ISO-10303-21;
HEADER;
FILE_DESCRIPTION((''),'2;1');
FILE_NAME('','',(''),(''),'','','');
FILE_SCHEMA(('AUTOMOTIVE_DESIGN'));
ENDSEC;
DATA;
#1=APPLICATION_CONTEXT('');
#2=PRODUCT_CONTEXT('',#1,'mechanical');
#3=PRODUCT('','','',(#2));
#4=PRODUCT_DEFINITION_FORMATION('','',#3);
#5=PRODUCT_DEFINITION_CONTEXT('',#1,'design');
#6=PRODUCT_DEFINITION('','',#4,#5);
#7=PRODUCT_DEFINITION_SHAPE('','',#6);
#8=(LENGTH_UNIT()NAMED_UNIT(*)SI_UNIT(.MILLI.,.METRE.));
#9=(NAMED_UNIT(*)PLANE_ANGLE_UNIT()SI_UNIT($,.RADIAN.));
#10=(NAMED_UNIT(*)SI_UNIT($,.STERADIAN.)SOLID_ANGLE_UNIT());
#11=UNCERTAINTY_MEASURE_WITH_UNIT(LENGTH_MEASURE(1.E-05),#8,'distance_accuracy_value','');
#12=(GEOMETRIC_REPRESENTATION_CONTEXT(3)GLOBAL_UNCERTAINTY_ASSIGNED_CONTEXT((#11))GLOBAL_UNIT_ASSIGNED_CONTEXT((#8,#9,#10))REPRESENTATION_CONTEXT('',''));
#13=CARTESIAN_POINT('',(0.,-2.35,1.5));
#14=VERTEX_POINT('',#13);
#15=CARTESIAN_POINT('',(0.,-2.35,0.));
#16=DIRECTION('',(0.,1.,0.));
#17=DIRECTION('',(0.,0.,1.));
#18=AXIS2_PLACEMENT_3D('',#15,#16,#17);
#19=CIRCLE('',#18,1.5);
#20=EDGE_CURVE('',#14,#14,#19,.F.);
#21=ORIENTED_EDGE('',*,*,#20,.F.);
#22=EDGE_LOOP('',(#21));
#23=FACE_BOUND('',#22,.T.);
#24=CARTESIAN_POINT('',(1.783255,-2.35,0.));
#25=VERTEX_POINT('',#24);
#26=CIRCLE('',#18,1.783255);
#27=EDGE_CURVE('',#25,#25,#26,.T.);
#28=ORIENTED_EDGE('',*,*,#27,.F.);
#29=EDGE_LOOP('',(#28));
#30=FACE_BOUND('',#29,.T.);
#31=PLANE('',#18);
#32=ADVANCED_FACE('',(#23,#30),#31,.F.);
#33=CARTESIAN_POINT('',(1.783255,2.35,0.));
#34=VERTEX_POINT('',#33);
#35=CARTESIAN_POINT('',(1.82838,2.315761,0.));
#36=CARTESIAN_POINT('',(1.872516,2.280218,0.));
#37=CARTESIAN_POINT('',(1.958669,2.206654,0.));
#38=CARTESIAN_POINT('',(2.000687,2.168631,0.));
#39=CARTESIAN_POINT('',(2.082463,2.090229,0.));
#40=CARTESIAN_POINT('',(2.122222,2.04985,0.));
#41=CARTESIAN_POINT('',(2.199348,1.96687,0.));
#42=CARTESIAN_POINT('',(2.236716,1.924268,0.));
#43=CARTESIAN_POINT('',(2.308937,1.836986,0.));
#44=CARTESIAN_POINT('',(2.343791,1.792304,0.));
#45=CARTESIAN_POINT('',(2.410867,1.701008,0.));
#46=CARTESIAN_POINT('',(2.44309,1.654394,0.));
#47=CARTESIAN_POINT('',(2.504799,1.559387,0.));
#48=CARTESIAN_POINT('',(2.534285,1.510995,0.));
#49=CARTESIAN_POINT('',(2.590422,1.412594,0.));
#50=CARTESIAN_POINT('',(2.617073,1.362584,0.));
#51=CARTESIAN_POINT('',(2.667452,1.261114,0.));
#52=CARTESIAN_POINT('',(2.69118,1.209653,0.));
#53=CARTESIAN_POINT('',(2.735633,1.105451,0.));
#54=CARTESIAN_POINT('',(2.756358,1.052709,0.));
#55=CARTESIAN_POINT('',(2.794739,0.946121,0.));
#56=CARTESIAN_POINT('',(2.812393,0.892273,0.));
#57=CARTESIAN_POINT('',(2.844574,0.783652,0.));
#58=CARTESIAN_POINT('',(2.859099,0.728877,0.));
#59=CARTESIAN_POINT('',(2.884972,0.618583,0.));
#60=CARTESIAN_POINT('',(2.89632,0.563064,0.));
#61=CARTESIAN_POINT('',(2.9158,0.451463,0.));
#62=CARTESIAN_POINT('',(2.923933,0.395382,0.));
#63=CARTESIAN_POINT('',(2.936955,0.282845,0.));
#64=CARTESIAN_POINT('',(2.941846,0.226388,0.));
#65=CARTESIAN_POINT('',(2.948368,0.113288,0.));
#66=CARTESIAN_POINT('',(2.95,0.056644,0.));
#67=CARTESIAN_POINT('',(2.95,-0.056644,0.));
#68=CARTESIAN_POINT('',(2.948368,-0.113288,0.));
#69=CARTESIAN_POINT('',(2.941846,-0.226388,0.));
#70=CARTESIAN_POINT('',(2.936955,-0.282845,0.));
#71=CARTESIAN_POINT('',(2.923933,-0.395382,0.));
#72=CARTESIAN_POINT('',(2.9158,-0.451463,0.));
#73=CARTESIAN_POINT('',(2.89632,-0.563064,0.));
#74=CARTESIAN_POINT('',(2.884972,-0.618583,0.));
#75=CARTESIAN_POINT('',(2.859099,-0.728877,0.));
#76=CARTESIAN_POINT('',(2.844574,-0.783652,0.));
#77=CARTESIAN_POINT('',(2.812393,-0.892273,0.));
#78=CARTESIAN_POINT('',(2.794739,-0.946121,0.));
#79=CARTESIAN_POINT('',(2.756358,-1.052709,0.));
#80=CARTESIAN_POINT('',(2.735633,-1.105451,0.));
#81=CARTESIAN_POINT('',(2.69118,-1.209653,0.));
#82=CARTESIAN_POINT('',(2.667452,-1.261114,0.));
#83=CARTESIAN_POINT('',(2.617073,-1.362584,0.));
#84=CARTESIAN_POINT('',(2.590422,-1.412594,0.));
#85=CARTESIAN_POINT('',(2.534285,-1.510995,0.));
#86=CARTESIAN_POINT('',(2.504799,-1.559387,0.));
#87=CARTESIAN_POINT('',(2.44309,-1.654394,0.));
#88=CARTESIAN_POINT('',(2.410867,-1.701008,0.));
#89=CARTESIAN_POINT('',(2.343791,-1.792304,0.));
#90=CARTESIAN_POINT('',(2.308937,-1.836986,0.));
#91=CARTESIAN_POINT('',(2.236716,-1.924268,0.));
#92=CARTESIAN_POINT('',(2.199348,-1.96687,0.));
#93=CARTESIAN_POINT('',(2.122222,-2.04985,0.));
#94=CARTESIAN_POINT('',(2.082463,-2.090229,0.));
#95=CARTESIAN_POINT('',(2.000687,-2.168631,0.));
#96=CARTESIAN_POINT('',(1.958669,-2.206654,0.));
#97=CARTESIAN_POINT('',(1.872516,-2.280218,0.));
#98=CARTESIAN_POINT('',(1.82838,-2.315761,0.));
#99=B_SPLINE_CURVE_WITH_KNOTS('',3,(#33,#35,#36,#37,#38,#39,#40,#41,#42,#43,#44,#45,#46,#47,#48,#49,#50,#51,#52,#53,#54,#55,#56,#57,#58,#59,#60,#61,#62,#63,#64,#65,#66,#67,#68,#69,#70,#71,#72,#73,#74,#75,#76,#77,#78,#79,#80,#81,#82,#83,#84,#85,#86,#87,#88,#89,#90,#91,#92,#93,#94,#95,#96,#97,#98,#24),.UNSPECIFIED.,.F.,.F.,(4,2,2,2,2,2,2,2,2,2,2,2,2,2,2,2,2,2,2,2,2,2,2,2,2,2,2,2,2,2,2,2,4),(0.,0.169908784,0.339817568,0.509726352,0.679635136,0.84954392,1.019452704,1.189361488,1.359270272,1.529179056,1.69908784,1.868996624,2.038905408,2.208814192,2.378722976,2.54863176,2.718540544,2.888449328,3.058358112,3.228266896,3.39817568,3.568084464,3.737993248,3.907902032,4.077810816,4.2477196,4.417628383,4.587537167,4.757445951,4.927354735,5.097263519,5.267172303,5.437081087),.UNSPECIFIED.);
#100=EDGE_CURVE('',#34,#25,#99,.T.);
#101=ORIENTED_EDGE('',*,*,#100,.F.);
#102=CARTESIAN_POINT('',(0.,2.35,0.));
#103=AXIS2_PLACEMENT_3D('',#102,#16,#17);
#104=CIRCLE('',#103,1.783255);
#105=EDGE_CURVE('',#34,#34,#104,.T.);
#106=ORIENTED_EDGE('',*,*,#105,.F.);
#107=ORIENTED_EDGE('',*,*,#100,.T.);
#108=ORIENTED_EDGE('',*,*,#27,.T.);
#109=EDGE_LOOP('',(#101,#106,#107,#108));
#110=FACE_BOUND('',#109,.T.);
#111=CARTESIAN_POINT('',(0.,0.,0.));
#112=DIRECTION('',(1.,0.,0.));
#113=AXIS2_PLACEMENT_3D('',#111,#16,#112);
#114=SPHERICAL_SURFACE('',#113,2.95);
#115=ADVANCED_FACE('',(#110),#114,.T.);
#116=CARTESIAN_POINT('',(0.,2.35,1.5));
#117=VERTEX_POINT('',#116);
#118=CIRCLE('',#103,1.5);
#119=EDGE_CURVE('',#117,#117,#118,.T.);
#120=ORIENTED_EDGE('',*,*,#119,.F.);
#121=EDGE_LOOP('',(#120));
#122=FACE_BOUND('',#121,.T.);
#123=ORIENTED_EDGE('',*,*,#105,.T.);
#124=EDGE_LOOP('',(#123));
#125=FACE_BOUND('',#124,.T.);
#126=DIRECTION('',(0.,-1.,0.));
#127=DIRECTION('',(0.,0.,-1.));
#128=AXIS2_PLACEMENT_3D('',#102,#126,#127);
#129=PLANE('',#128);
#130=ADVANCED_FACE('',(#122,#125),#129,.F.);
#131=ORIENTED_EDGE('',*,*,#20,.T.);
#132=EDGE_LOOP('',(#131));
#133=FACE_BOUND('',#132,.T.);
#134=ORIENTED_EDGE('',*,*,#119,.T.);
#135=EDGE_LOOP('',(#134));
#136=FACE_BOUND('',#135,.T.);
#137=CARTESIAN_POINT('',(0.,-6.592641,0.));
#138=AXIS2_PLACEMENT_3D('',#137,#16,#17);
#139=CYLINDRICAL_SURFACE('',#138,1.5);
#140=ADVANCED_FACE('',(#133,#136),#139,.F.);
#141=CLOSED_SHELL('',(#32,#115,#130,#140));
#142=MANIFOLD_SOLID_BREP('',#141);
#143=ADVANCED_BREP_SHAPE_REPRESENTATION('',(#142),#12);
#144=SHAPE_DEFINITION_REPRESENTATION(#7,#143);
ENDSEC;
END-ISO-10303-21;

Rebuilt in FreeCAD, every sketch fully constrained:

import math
import FreeCAD as App
import Part
import Sketcher

V = App.Vector

doc = App.newDocument("Part")
body = doc.addObject("PartDesign::Body", "Body")

sketch1 = body.newObject("Sketcher::SketchObject", "Sketch")
sketch1.AttachmentSupport = (doc.getObject("XY_Plane"), [""])
sketch1.MapMode = "FlatFace"
sketch1.addGeometry([
    Part.LineSegment(V(0, 2.35, 0), V(0, -2.35, 0)),
    Part.LineSegment(V(0, -2.35, 0), V(1.783255, -2.35, 0)),
    Part.ArcOfCircle(Part.Circle(V(0, 0, 0), V(0, 0, 1), 2.95), math.radians(-52.807606), math.radians(52.807606)),
    Part.LineSegment(V(1.783255, 2.35, 0), V(0, 2.35, 0)),
], False)
sketch1.addConstraint([
    Sketcher.Constraint("Coincident", 0, 2, 1, 1),
    Sketcher.Constraint("Coincident", 1, 2, 2, 1),
    Sketcher.Constraint("Coincident", 2, 2, 3, 1),
    Sketcher.Constraint("Coincident", 3, 2, 0, 1),
    Sketcher.Constraint("Vertical", 0),
    Sketcher.Constraint("Horizontal", 1),
    Sketcher.Constraint("Horizontal", 3),
    Sketcher.Constraint("Coincident", 2, 3, -1, 1),
    Sketcher.Constraint("Symmetric", 0, 2, 3, 2, -1, 1),
    Sketcher.Constraint("Radius", 2, 2.95),
    Sketcher.Constraint("DistanceY", 0, 2, 0, 1, 4.7),
])
revolution = body.newObject("PartDesign::Revolution", "Revolution")
revolution.Profile = sketch1
revolution.ReferenceAxis = (sketch1, ["V_Axis"])
revolution.Angle = 360

sketch2 = body.newObject("Sketcher::SketchObject", "Sketch001")
sketch2.AttachmentSupport = (doc.getObject("XZ_Plane"), [""])
sketch2.MapMode = "FlatFace"
sketch2.AttachmentOffset = App.Placement(V(0, 0, -2.35), App.Rotation())
sketch2.addGeometry(Part.Circle(V(0, 0, 0), V(0, 0, 1), 1.5), False)
sketch2.addConstraint([
    Sketcher.Constraint("Coincident", 0, 3, -1, 1),
    Sketcher.Constraint("Diameter", 0, 3.0),
])
pocket1 = body.newObject("PartDesign::Pocket", "Pocket")
pocket1.Profile = sketch2
pocket1.Length = 4.7
pocket1.Reversed = True

doc.recompute()
